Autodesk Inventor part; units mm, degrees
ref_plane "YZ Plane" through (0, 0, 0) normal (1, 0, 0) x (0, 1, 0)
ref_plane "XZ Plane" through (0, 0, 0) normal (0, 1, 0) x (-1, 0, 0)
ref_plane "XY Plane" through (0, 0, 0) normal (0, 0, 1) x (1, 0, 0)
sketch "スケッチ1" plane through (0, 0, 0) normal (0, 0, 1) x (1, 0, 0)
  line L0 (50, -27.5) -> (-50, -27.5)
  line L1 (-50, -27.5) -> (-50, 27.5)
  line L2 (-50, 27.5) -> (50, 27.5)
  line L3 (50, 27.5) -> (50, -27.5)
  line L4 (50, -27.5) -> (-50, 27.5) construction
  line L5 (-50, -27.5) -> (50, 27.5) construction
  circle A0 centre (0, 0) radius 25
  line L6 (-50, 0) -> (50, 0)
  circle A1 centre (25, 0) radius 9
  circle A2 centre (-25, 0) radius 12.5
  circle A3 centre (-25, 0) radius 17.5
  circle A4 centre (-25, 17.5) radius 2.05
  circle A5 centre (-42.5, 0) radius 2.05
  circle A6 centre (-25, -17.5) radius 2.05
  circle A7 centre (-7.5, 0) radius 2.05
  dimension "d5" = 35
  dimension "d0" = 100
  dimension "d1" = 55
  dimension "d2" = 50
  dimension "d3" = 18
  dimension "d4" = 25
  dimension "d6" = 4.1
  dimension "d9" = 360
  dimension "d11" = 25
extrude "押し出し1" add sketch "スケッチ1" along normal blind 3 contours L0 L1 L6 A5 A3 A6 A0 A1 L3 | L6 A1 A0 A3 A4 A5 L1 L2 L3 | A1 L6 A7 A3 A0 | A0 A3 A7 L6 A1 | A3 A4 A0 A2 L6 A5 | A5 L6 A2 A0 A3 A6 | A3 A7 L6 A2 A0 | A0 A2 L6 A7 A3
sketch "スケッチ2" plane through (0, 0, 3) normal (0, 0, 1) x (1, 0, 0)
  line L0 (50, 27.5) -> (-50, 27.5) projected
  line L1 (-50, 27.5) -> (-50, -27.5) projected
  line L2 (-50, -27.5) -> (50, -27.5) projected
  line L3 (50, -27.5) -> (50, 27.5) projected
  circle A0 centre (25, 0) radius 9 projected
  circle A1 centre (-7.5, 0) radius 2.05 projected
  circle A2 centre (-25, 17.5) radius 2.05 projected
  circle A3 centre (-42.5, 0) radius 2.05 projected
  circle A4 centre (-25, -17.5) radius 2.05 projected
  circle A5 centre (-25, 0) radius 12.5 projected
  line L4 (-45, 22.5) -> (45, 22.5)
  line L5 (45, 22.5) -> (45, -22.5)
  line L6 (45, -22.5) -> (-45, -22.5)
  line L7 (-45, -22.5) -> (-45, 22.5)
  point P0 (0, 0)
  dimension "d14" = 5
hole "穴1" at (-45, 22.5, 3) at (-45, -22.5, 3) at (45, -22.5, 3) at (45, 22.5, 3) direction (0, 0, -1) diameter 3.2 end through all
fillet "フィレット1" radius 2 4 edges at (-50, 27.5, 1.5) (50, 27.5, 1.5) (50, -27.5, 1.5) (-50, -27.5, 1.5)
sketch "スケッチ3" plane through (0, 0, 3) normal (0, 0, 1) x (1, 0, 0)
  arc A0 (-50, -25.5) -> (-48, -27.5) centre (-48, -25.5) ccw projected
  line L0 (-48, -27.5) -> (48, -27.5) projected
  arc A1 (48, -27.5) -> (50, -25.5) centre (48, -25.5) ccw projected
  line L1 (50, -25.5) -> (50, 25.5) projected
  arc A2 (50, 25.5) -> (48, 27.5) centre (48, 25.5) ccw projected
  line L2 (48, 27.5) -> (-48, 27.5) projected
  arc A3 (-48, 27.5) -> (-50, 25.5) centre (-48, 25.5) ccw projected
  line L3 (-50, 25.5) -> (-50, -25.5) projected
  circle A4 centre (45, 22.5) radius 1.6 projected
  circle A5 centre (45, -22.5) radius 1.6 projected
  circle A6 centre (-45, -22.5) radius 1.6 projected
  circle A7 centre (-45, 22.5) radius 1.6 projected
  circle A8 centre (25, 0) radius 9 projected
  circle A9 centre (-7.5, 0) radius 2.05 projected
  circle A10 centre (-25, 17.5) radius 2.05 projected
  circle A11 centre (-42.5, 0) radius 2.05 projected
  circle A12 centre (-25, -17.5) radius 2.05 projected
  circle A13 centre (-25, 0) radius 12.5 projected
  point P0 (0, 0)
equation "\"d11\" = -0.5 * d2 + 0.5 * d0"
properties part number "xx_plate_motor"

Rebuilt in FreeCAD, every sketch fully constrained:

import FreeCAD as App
import Part
import Sketcher

V = App.Vector


def edges_at(feature, points):
    """Names of the edges that pass closest to the given points."""
    edges = feature.Shape.Edges
    near = lambda p: min(range(len(edges)), key=lambda i: edges[i].distToShape(Part.Vertex(*p))[0])
    return sorted({f"Edge{near(p) + 1}" for p in points})


def add_polygon(sketch, points):
    """Adds a closed chain of lines whose ends are joined by coincident constraints."""
    first, n = sketch.GeometryCount, len(points)
    for a, b in zip(points, points[1:] + points[:1]):
        sketch.addGeometry(Part.LineSegment(App.Vector(*a, 0), App.Vector(*b, 0)), False)
    for i in range(n):
        sketch.addConstraint(Sketcher.Constraint("Coincident", first + i, 2, first + (i + 1) % n, 1))

doc = App.newDocument("Part")
body = doc.addObject("PartDesign::Body", "Body")

# Sketch on XY plane
sketch1 = body.newObject("Sketcher::SketchObject", "Sketch")
sketch1.AttachmentSupport = (doc.getObject("XY_Plane"), [""])
sketch1.MapMode = "FlatFace"
add_polygon(sketch1, [(-50, -27.5), (50, -27.5), (50, 27.5), (-50, 27.5)])  # lines 0-3
sketch1.addGeometry(Part.Circle(V(-42.5, 0, 0), V(0, 0, 1), 2), False)  # 4
sketch1.addGeometry(Part.Circle(V(-25, -17.5, 0), V(0, 0, 1), 2), False)  # 5
sketch1.addGeometry(Part.Circle(V(25, 0, 0), V(0, 0, 1), 9), False)  # 6
sketch1.addGeometry(Part.Circle(V(-25, 17.5, 0), V(0, 0, 1), 2), False)  # 7
sketch1.addGeometry(Part.Circle(V(-25, 0, 0), V(0, 0, 1), 12.5), False)  # 8
sketch1.addGeometry(Part.Circle(V(-7.5, 0, 0), V(0, 0, 1), 2), False)  # 9
sketch1.addConstraint(Sketcher.Constraint("Horizontal", 0))
sketch1.addConstraint(Sketcher.Constraint("Vertical", 1))
sketch1.addConstraint(Sketcher.Constraint("Horizontal", 2))
sketch1.addConstraint(Sketcher.Constraint("Vertical", 3))
sketch1.addConstraint(Sketcher.Constraint("Equal", 4, 5))
sketch1.addConstraint(Sketcher.Constraint("Equal", 5, 7))
sketch1.addConstraint(Sketcher.Constraint("Equal", 7, 9))
sketch1.addConstraint(Sketcher.Constraint("Symmetric", 6, 3, 8, 3, -1, 1))
sketch1.addConstraint(Sketcher.Constraint("Symmetric", 0, 2, 2, 2, -1, 1))
sketch1.addConstraint(Sketcher.Constraint("Symmetric", 5, 3, 7, 3, -1))
sketch1.addConstraint(Sketcher.Constraint("PointOnObject", 4, 3, -1))
sketch1.addConstraint(Sketcher.Constraint("PointOnObject", 6, 3, -1))
sketch1.addConstraint(Sketcher.Constraint("PointOnObject", 9, 3, -1))
sketch1.addConstraint(Sketcher.Constraint("Vertical", 7, 3, 8, 3))
sketch1.addConstraint(Sketcher.Constraint("Diameter", 6, 18.0))
sketch1.addConstraint(Sketcher.Constraint("Diameter", 8, 25.0))
sketch1.addConstraint(Sketcher.Constraint("Diameter", 4, 4.1))
sketch1.addConstraint(Sketcher.Constraint("DistanceX", 0, 1, 0, 2, 100.0))
sketch1.addConstraint(Sketcher.Constraint("DistanceY", 1, 1, 1, 2, 55.0))
sketch1.addConstraint(Sketcher.Constraint("DistanceX", 5, 3, -1, 1, 25.0))
sketch1.addConstraint(Sketcher.Constraint("DistanceY", 5, 3, 7, 3, 35.0))
sketch1.addConstraint(Sketcher.Constraint("DistanceX", 4, 3, 9, 3, 35.0))
sketch1.addConstraint(Sketcher.Constraint("DistanceX", 4, 3, -1, 1, 42.5))
pad1 = body.newObject("PartDesign::Pad", "Pad")
pad1.Profile = sketch1
pad1.Length = 3

# Sketch on XY plane
sketch2 = body.newObject("Sketcher::SketchObject", "Sketch001")
sketch2.AttachmentSupport = (doc.getObject("XY_Plane"), [""])
sketch2.MapMode = "FlatFace"
sketch2.AttachmentOffset = App.Placement(V(0, 0, 3), App.Rotation())
sketch2.addGeometry(Part.Circle(V(-45, 22.5, 0), V(0, 0, 1), 1.6), False)
sketch2.addGeometry(Part.Circle(V(-45, -22.5, 0), V(0, 0, 1), 1.6), False)
sketch2.addGeometry(Part.Circle(V(45, -22.5, 0), V(0, 0, 1), 1.6), False)
sketch2.addGeometry(Part.Circle(V(45, 22.5, 0), V(0, 0, 1), 1.6), False)
sketch2.addConstraint(Sketcher.Constraint("Equal", 0, 1))
sketch2.addConstraint(Sketcher.Constraint("Equal", 1, 2))
sketch2.addConstraint(Sketcher.Constraint("Equal", 2, 3))
sketch2.addConstraint(Sketcher.Constraint("Symmetric", 0, 3, 2, 3, -1, 1))
sketch2.addConstraint(Sketcher.Constraint("Symmetric", 1, 3, 3, 3, -1, 1))
sketch2.addConstraint(Sketcher.Constraint("Symmetric", 1, 3, 2, 3, -2))
sketch2.addConstraint(Sketcher.Constraint("Diameter", 0, 3.2))
sketch2.addConstraint(Sketcher.Constraint("DistanceX", 0, 3, -1, 1, 45.0))
sketch2.addConstraint(Sketcher.Constraint("DistanceY", 1, 3, 0, 3, 45.0))
doc.recompute()
hole = body.newObject("PartDesign::Hole", "Hole")
hole.Profile = sketch2
hole.ThreadType = "None"
hole.Diameter = 3.2
hole.DepthType = "ThroughAll"
doc.recompute()

fillet = body.newObject("PartDesign::Fillet", "Fillet")
fillet.Base = (hole, edges_at(hole, [
    (-50, 27.5, 1.5),
    (50, 27.5, 1.5),
    (50, -27.5, 1.5),
    (-50, -27.5, 1.5),
]))
fillet.Radius = 2

doc.recompute()
